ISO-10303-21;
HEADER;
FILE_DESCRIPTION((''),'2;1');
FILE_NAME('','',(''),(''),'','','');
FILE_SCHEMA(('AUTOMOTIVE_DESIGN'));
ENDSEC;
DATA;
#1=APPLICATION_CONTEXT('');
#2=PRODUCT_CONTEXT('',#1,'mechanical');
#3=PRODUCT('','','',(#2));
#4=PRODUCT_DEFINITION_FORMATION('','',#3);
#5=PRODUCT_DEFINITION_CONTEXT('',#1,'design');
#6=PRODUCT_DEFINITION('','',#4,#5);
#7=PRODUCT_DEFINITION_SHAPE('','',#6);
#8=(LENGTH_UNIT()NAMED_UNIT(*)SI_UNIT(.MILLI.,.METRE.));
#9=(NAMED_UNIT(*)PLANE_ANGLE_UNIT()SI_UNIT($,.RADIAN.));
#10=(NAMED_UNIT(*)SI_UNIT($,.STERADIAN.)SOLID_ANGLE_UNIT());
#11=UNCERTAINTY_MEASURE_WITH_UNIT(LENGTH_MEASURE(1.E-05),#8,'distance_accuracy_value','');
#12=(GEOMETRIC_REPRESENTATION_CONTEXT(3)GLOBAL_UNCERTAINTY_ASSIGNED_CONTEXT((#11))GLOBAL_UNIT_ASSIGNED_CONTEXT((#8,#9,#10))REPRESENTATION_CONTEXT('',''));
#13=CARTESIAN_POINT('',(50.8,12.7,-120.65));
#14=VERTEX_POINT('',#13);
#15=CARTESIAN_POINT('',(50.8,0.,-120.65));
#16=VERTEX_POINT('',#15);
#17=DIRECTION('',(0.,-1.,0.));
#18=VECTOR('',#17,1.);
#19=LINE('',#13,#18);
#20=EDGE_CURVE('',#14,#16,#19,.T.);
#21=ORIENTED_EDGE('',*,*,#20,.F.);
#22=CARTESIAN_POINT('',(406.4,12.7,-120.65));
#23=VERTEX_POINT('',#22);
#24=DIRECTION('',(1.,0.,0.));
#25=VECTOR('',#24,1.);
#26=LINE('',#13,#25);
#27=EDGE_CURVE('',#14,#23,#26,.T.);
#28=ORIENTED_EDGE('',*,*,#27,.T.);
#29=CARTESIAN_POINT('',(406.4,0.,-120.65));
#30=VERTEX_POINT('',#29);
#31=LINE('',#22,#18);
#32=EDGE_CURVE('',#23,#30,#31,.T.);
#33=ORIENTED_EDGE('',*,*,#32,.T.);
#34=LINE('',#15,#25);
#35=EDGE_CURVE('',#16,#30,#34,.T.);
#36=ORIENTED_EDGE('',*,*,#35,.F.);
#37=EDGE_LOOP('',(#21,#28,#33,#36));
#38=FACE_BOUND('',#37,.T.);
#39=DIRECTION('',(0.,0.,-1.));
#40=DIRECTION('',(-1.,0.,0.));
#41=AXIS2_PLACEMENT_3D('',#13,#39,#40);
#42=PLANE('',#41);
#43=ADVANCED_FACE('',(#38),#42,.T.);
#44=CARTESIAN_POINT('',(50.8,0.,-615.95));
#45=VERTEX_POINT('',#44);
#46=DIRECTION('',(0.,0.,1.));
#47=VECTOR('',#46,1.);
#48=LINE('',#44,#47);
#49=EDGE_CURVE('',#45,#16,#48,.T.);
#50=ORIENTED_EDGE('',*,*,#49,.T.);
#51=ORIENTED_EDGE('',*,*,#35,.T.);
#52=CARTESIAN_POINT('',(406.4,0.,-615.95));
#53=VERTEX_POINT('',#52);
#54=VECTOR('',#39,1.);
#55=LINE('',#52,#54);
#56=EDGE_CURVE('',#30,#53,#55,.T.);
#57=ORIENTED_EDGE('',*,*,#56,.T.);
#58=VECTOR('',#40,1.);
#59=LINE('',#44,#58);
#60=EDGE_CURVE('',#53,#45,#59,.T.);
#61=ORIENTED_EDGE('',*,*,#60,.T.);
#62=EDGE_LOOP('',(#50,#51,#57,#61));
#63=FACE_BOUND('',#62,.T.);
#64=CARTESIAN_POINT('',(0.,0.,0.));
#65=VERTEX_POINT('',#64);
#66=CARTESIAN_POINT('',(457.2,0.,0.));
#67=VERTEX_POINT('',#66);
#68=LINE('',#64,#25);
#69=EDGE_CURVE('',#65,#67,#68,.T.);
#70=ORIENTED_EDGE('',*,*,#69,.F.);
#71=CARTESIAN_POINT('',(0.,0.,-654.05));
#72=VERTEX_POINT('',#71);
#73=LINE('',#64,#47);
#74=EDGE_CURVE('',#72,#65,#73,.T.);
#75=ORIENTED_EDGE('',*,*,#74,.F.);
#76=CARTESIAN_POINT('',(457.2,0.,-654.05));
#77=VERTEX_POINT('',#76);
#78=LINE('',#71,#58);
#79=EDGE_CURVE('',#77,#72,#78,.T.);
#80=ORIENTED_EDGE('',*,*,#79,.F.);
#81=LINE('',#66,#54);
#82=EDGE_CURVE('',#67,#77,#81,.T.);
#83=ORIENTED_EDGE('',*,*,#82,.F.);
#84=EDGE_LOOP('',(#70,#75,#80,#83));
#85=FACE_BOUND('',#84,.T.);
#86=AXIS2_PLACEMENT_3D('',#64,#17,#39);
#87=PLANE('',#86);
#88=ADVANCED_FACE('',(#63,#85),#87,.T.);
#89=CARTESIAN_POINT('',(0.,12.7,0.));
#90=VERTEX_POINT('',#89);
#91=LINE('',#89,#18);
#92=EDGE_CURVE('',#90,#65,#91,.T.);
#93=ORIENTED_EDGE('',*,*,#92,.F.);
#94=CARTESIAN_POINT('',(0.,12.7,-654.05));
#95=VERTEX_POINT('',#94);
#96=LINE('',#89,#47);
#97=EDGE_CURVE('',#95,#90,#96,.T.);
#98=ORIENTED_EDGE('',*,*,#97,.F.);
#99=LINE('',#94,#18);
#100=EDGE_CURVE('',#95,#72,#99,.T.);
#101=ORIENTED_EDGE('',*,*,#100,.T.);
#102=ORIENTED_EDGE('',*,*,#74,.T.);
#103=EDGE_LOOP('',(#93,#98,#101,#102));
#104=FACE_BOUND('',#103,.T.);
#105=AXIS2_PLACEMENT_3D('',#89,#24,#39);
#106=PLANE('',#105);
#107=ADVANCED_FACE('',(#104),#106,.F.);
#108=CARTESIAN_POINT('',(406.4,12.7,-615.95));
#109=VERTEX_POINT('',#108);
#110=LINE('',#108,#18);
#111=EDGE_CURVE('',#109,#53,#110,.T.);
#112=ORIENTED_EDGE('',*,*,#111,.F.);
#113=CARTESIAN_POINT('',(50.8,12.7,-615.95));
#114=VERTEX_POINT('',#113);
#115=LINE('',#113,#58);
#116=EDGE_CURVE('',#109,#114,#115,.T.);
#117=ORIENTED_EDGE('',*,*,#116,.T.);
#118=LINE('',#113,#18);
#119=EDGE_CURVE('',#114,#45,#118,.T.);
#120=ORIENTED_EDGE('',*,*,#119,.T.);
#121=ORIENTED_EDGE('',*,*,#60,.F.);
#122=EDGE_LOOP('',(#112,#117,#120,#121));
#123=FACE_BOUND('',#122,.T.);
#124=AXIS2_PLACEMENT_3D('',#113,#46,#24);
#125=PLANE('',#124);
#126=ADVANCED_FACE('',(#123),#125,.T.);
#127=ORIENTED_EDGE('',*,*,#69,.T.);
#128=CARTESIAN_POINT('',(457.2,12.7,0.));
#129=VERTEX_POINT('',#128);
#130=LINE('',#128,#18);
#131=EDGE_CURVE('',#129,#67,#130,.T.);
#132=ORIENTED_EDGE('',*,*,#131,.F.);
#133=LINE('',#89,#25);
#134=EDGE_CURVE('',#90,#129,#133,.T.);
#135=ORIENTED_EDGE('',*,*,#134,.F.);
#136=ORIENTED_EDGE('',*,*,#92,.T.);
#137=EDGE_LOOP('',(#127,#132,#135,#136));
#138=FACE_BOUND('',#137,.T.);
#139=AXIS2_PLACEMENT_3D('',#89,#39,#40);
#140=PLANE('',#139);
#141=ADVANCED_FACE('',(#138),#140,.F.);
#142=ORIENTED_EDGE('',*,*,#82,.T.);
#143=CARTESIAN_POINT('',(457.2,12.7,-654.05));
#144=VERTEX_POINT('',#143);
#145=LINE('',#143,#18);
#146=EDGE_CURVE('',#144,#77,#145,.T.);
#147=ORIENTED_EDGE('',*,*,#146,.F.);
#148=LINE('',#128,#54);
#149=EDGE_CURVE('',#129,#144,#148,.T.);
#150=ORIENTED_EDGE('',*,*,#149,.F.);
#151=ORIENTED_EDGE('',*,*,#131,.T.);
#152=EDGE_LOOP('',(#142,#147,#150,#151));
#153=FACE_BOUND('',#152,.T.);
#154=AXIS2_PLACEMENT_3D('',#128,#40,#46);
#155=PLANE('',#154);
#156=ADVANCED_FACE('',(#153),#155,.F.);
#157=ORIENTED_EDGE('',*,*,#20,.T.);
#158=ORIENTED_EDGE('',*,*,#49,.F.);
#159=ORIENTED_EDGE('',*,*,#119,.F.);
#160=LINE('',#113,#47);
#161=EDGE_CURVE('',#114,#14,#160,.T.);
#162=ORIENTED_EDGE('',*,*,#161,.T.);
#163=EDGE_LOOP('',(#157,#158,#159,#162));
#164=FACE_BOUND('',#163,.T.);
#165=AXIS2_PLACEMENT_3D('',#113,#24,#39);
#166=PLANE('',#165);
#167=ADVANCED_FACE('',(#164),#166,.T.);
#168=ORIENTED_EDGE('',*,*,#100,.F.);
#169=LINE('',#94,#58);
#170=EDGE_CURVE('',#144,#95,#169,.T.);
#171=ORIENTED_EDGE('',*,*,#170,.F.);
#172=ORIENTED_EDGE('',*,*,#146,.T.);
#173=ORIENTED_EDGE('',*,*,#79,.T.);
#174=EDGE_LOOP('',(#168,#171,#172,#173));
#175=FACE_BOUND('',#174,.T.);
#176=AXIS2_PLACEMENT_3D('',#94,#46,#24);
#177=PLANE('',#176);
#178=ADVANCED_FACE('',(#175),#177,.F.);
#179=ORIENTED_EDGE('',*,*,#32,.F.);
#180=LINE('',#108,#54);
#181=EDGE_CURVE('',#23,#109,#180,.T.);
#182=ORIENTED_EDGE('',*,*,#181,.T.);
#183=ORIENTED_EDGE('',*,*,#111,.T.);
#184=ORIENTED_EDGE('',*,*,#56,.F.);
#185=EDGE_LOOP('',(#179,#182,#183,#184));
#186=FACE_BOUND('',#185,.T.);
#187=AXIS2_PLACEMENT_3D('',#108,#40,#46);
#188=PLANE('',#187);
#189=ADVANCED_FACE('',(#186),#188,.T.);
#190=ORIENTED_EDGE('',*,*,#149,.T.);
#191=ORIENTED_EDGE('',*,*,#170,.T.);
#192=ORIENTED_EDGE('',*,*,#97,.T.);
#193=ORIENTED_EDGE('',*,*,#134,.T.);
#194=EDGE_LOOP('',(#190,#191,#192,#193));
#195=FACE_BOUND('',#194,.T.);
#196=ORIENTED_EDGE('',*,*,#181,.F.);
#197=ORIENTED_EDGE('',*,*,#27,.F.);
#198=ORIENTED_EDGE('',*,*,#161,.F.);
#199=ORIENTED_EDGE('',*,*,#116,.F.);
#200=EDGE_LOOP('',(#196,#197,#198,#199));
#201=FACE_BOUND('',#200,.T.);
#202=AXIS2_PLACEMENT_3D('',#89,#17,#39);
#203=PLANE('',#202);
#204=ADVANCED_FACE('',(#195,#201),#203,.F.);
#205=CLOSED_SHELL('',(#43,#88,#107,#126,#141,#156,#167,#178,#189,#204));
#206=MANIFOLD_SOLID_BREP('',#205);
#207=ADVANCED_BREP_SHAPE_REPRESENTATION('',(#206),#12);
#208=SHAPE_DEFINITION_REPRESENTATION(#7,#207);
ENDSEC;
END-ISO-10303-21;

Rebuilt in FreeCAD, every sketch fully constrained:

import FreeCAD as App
import Part
import Sketcher

V = App.Vector
Q = App.Units.Quantity


def add_polygon(sketch, points):
    """Adds a closed chain of lines whose ends are joined by coincident constraints."""
    first, n = sketch.GeometryCount, len(points)
    for a, b in zip(points, points[1:] + points[:1]):
        sketch.addGeometry(Part.LineSegment(App.Vector(*a, 0), App.Vector(*b, 0)), False)
    for i in range(n):
        sketch.addConstraint(Sketcher.Constraint("Coincident", first + i, 2, first + (i + 1) % n, 1))

doc = App.newDocument("Part")
body = doc.addObject("PartDesign::Body", "Body")

# Sketch on XZ plane
sketch1 = body.newObject("Sketcher::SketchObject", "Sketch")
sketch1.AttachmentSupport = (doc.getObject("XZ_Plane"), [""])
sketch1.MapMode = "FlatFace"
add_polygon(sketch1, [(0, -654.05), (0, 0), (457.2, 0), (457.2, -654.05)])  # lines 0-3
add_polygon(sketch1, [(406.4, -120.65), (50.8, -120.65), (50.8, -615.95), (406.4, -615.95)])  # lines 4-7
sketch1.addConstraint(Sketcher.Constraint("Vertical", 0))
sketch1.addConstraint(Sketcher.Constraint("Horizontal", 1))
sketch1.addConstraint(Sketcher.Constraint("Vertical", 2))
sketch1.addConstraint(Sketcher.Constraint("Horizontal", 3))
sketch1.addConstraint(Sketcher.Constraint("Horizontal", 4))
sketch1.addConstraint(Sketcher.Constraint("Vertical", 5))
sketch1.addConstraint(Sketcher.Constraint("Horizontal", 6))
sketch1.addConstraint(Sketcher.Constraint("Vertical", 7))
sketch1.addConstraint(Sketcher.Constraint("Coincident", 0, 2, -1, 1))
sketch1.addConstraint(Sketcher.Constraint("DistanceX", 1, 1, 1, 2, Q("18 in")))
sketch1.addConstraint(Sketcher.Constraint("DistanceX", 4, 2, 4, 1, Q("14 in")))
sketch1.addConstraint(Sketcher.Constraint("DistanceY", 5, 2, 5, 1, Q("19.5 in")))
sketch1.addConstraint(Sketcher.Constraint("DistanceX", -1, 1, 4, 2, Q("2 in")))
sketch1.addConstraint(Sketcher.Constraint("DistanceY", 3, 2, 4, 2, Q("21 in")))
sketch1.addConstraint(Sketcher.Constraint("DistanceY", 0, 1, 0, 2, Q("25.75 in")))
pad1 = body.newObject("PartDesign::Pad", "Pad")
pad1.Profile = sketch1
pad1.Length = Q("0.5 in")
pad1.Reversed = True

doc.recompute()
